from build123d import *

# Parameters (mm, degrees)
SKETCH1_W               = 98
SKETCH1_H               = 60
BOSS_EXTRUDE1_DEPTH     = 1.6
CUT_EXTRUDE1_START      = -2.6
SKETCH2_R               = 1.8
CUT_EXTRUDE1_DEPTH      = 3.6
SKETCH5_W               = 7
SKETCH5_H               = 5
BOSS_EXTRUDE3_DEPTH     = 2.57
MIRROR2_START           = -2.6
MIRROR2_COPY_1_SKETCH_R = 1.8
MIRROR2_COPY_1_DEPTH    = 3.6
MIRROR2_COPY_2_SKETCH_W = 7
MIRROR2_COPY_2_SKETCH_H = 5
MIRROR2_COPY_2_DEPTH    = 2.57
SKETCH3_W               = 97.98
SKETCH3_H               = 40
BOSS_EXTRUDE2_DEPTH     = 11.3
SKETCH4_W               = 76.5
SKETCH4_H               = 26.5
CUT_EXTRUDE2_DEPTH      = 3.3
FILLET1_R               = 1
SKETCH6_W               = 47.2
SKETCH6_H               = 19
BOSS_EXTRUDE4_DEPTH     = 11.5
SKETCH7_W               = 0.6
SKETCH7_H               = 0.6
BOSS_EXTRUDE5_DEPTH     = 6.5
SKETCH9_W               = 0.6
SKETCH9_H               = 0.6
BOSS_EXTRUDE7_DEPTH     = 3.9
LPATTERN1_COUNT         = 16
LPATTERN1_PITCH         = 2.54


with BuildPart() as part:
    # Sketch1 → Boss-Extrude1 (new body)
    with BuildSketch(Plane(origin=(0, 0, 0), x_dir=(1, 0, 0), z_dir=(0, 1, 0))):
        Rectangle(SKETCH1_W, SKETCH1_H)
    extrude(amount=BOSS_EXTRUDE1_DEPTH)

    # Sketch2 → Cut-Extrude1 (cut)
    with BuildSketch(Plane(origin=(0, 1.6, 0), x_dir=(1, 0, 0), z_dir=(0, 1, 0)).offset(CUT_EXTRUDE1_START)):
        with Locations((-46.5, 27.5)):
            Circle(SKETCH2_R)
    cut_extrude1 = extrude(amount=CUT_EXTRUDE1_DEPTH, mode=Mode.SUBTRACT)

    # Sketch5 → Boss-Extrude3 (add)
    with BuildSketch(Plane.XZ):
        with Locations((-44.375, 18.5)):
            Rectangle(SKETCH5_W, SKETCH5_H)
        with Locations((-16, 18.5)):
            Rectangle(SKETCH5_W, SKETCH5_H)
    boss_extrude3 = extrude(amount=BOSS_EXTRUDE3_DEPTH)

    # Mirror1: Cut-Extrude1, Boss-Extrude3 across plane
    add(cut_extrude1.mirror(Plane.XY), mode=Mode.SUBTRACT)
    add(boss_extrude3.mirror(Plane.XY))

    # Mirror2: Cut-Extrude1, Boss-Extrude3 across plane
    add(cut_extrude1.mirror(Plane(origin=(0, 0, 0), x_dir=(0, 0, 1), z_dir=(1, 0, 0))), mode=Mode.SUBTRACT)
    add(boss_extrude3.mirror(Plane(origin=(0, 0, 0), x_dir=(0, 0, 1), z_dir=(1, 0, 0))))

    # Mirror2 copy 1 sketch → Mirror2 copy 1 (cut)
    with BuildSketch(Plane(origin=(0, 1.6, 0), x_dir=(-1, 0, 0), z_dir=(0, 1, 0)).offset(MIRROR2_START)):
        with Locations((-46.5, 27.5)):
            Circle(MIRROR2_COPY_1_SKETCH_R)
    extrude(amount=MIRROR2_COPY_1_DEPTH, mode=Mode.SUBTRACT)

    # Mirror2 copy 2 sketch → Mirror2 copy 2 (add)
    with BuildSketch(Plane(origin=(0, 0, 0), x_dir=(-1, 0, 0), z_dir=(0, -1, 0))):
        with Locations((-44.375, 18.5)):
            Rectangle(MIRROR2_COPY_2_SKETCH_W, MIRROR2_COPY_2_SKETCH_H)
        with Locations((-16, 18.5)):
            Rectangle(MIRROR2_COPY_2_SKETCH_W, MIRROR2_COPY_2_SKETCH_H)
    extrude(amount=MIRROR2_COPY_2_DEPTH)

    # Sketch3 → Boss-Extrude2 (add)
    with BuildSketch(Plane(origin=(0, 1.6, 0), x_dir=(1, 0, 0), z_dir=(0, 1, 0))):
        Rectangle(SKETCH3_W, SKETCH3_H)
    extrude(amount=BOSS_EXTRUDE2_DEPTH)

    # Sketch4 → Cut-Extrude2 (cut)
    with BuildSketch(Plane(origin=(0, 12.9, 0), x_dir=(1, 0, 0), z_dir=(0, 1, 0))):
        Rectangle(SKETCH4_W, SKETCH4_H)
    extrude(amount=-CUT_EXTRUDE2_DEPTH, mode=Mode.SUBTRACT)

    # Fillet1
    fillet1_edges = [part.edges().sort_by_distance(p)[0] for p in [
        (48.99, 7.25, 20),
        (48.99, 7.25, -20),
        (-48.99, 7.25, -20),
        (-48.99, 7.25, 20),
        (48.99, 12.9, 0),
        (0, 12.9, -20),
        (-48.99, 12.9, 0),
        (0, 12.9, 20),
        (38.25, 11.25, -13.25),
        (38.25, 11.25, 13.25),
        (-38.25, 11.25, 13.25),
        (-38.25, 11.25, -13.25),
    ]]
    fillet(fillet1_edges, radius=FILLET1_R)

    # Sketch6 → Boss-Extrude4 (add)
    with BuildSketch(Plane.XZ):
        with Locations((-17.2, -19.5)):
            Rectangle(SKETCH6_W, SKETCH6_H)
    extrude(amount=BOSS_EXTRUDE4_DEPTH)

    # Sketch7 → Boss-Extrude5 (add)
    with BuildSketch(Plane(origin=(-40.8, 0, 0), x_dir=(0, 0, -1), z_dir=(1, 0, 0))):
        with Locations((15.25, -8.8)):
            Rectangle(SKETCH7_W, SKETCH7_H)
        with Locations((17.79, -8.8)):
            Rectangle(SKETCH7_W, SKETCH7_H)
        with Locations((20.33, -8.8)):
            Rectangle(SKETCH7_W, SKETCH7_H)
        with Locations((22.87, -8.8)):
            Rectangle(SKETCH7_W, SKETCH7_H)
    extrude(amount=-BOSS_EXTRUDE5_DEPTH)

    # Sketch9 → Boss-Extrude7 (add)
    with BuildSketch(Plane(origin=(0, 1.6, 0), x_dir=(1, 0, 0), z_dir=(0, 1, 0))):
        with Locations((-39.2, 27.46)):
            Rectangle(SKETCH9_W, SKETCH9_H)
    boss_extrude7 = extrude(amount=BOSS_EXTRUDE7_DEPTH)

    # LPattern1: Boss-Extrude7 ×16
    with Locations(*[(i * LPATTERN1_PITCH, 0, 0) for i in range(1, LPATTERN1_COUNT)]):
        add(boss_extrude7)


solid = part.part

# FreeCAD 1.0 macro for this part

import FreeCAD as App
import Part
import Sketcher

V = App.Vector
Q = App.Units.Quantity


def edges_at(feature, points):
    """Names of the edges that pass closest to the given points."""
    edges = feature.Shape.Edges
    near = lambda p: min(range(len(edges)), key=lambda i: edges[i].distToShape(Part.Vertex(*p))[0])
    return sorted({f"Edge{near(p) + 1}" for p in points})

doc = App.newDocument("Part")
body = doc.addObject("PartDesign::Body", "Body")

# Sketch on XZ plane
sketch1 = doc.addObject("Sketcher::SketchObject", "Sketch")
body.addObject(sketch1)
sketch1.AttachmentSupport = (doc.XZ_Plane, [""])
sketch1.MapMode = "FlatFace"
sketch1.addGeometry([
    Part.LineSegment(V(-49, -30, 0), V(-49, 30, 0)),
    Part.LineSegment(V(-49, 30, 0), V(49, 30, 0)),
    Part.LineSegment(V(49, 30, 0), V(49, -30, 0)),
    Part.LineSegment(V(49, -30, 0), V(-49, -30, 0)),
], False)
sketch1.addConstraint([
    Sketcher.Constraint("Coincident", 0, 2, 1, 1),
    Sketcher.Constraint("Coincident", 1, 2, 2, 1),
    Sketcher.Constraint("Coincident", 2, 2, 3, 1),
    Sketcher.Constraint("Coincident", 3, 2, 0, 1),
    Sketcher.Constraint("Vertical", 0),
    Sketcher.Constraint("Horizontal", 1),
    Sketcher.Constraint("Vertical", 2),
    Sketcher.Constraint("Horizontal", 3),
    Sketcher.Constraint("Symmetric", 0, 2, 2, 2, -1, 1),
    Sketcher.Constraint("DistanceX", 1, 1, 1, 2, Q("98 mm")),
    Sketcher.Constraint("DistanceY", 0, 1, 0, 2, Q("60 mm")),
])
pad1 = doc.addObject("PartDesign::Pad", "Pad")
body.addObject(pad1)
pad1.Profile = sketch1
pad1.Length = 1.6
pad1.Reversed = True

# Sketch on XZ plane
sketch2 = doc.addObject("Sketcher::SketchObject", "Sketch001")
body.addObject(sketch2)
sketch2.AttachmentSupport = (doc.XZ_Plane, [""])
sketch2.MapMode = "FlatFace"
sketch2.AttachmentOffset = App.Placement(V(0, 0, 1), App.Rotation())
sketch2.addGeometry(Part.Circle(V(-46.5, -27.5, 0), V(0, 0, 1), 1.8), False)
sketch2.addConstraint([
    Sketcher.Constraint("Diameter", 0, Q("3.6 mm")),
    Sketcher.Constraint("DistanceX", 0, 3, -1, 1, Q("46.5 mm")),
    Sketcher.Constraint("DistanceY", 0, 3, -1, 1, Q("27.5 mm")),
])
pocket1 = doc.addObject("PartDesign::Pocket", "Pocket")
body.addObject(pocket1)
pocket1.Profile = sketch2
pocket1.Length = 3.6

# Sketch on XZ plane
sketch3 = doc.addObject("Sketcher::SketchObject", "Sketch002")
body.addObject(sketch3)
sketch3.AttachmentSupport = (doc.XZ_Plane, [""])
sketch3.MapMode = "FlatFace"
sketch3.addGeometry([
    Part.LineSegment(V(-47.875, 21, 0), V(-47.875, 16, 0)),  # 0
    Part.LineSegment(V(-47.875, 16, 0), V(-40.875, 16, 0)),  # 1
    Part.LineSegment(V(-40.875, 16, 0), V(-40.875, 21, 0)),  # 2
    Part.LineSegment(V(-40.875, 21, 0), V(-47.875, 21, 0)),  # 3
    Part.LineSegment(V(-19.5, 21, 0), V(-19.5, 16, 0)),  # 4
    Part.LineSegment(V(-19.5, 16, 0), V(-12.5, 16, 0)),  # 5
    Part.LineSegment(V(-12.5, 16, 0), V(-12.5, 21, 0)),  # 6
    Part.LineSegment(V(-12.5, 21, 0), V(-19.5, 21, 0)),  # 7
], False)
sketch3.addConstraint([
    Sketcher.Constraint("Coincident", 0, 2, 1, 1),
    Sketcher.Constraint("Coincident", 1, 2, 2, 1),
    Sketcher.Constraint("Coincident", 2, 2, 3, 1),
    Sketcher.Constraint("Coincident", 3, 2, 0, 1),
    Sketcher.Constraint("Coincident", 4, 2, 5, 1),
    Sketcher.Constraint("Coincident", 5, 2, 6, 1),
    Sketcher.Constraint("Coincident", 6, 2, 7, 1),
    Sketcher.Constraint("Coincident", 7, 2, 4, 1),
    Sketcher.Constraint("Vertical", 0),
    Sketcher.Constraint("Horizontal", 1),
    Sketcher.Constraint("Vertical", 2),
    Sketcher.Constraint("Horizontal", 3),
    Sketcher.Constraint("Vertical", 4),
    Sketcher.Constraint("Horizontal", 5),
    Sketcher.Constraint("Vertical", 6),
    Sketcher.Constraint("Horizontal", 7),
    Sketcher.Constraint("Horizontal", 1, 2, 4, 2),
    Sketcher.Constraint("Horizontal", 3, 2, 6, 2),
    Sketcher.Constraint("Equal", 3, 5),
    Sketcher.Constraint("DistanceX", 1, 1, 1, 2, Q("7 mm")),
    Sketcher.Constraint("DistanceY", 0, 2, 0, 1, Q("5 mm")),
    Sketcher.Constraint("DistanceY", -1, 1, 0, 2, Q("16 mm")),
    Sketcher.Constraint("DistanceX", 4, 2, -1, 1, Q("19.5 mm")),
    Sketcher.Constraint("DistanceX", 0, 2, -1, 1, Q("47.875 mm")),
])
pad2 = doc.addObject("PartDesign::Pad", "Pad001")
body.addObject(pad2)
pad2.Profile = sketch3
pad2.Length = 2.57
doc.recompute()

mirrored = doc.addObject("PartDesign::Mirrored", "Mirrored")
body.addObject(mirrored)
mirrored.Originals = [pocket1, pad2]
mirrored.MirrorPlane = (doc.XY_Plane, [""])
body.Tip = mirrored
doc.recompute()

mirrored2 = doc.addObject("PartDesign::Mirrored", "Mirrored001")
body.addObject(mirrored2)
mirrored2.Originals = [pocket1, pad2]
mirrored2.MirrorPlane = (doc.YZ_Plane, [""])
body.Tip = mirrored2

# Sketch on XZ plane
sketch4 = doc.addObject("Sketcher::SketchObject", "Sketch003")
body.addObject(sketch4)
sketch4.AttachmentSupport = (doc.XZ_Plane, [""])
sketch4.MapMode = "FlatFace"
sketch4.AttachmentOffset = App.Placement(V(0, 0, 1), App.Rotation())
sketch4.addGeometry(Part.Circle(V(46.5, 27.5, 0), V(0, 0, 1), 1.8), False)
sketch4.addConstraint([
    Sketcher.Constraint("Diameter", 0, Q("3.6 mm")),
    Sketcher.Constraint("DistanceX", -1, 1, 0, 3, Q("46.5 mm")),
    Sketcher.Constraint("DistanceY", -1, 1, 0, 3, Q("27.5 mm")),
])
pocket2 = doc.addObject("PartDesign::Pocket", "Pocket001")
body.addObject(pocket2)
pocket2.Profile = sketch4
pocket2.Length = 3.6

# Sketch on XZ plane
sketch5 = doc.addObject("Sketcher::SketchObject", "Sketch004")
body.addObject(sketch5)
sketch5.AttachmentSupport = (doc.XZ_Plane, [""])
sketch5.MapMode = "FlatFace"
sketch5.addGeometry([
    Part.LineSegment(V(47.875, -21, 0), V(47.875, -16, 0)),  # 0
    Part.LineSegment(V(47.875, -16, 0), V(40.875, -16, 0)),  # 1
    Part.LineSegment(V(40.875, -16, 0), V(40.875, -21, 0)),  # 2
    Part.LineSegment(V(40.875, -21, 0), V(47.875, -21, 0)),  # 3
    Part.LineSegment(V(19.5, -21, 0), V(19.5, -16, 0)),  # 4
    Part.LineSegment(V(19.5, -16, 0), V(12.5, -16, 0)),  # 5
    Part.LineSegment(V(12.5, -16, 0), V(12.5, -21, 0)),  # 6
    Part.LineSegment(V(12.5, -21, 0), V(19.5, -21, 0)),  # 7
], False)
sketch5.addConstraint([
    Sketcher.Constraint("Coincident", 0, 2, 1, 1),
    Sketcher.Constraint("Coincident", 1, 2, 2, 1),
    Sketcher.Constraint("Coincident", 2, 2, 3, 1),
    Sketcher.Constraint("Coincident", 3, 2, 0, 1),
    Sketcher.Constraint("Coincident", 4, 2, 5, 1),
    Sketcher.Constraint("Coincident", 5, 2, 6, 1),
    Sketcher.Constraint("Coincident", 6, 2, 7, 1),
    Sketcher.Constraint("Coincident", 7, 2, 4, 1),
    Sketcher.Constraint("Vertical", 0),
    Sketcher.Constraint("Horizontal", 1),
    Sketcher.Constraint("Vertical", 2),
    Sketcher.Constraint("Horizontal", 3),
    Sketcher.Constraint("Vertical", 4),
    Sketcher.Constraint("Horizontal", 5),
    Sketcher.Constraint("Vertical", 6),
    Sketcher.Constraint("Horizontal", 7),
    Sketcher.Constraint("Horizontal", 1, 2, 4, 2),
    Sketcher.Constraint("Horizontal", 3, 2, 6, 2),
    Sketcher.Constraint("Equal", 3, 5),
    Sketcher.Constraint("DistanceX", 1, 2, 1, 1, Q("7 mm")),
    Sketcher.Constraint("DistanceY", 0, 1, 0, 2, Q("5 mm")),
    Sketcher.Constraint("DistanceY", 0, 2, -1, 1, Q("16 mm")),
    Sketcher.Constraint("DistanceX", -1, 1, 4, 2, Q("19.5 mm")),
    Sketcher.Constraint("DistanceX", -1, 1, 0, 2, Q("47.875 mm")),
])
pad3 = doc.addObject("PartDesign::Pad", "Pad002")
body.addObject(pad3)
pad3.Profile = sketch5
pad3.Length = 2.57

# Sketch on XZ plane
sketch6 = doc.addObject("Sketcher::SketchObject", "Sketch005")
body.addObject(sketch6)
sketch6.AttachmentSupport = (doc.XZ_Plane, [""])
sketch6.MapMode = "FlatFace"
sketch6.AttachmentOffset = App.Placement(V(0, 0, -1.6), App.Rotation())
sketch6.addGeometry([
    Part.LineSegment(V(-48.99, -20, 0), V(-48.99, 20, 0)),
    Part.LineSegment(V(-48.99, 20, 0), V(48.99, 20, 0)),
    Part.LineSegment(V(48.99, 20, 0), V(48.99, -20, 0)),
    Part.LineSegment(V(48.99, -20, 0), V(-48.99, -20, 0)),
], False)
sketch6.addConstraint([
    Sketcher.Constraint("Coincident", 0, 2, 1, 1),
    Sketcher.Constraint("Coincident", 1, 2, 2, 1),
    Sketcher.Constraint("Coincident", 2, 2, 3, 1),
    Sketcher.Constraint("Coincident", 3, 2, 0, 1),
    Sketcher.Constraint("Vertical", 0),
    Sketcher.Constraint("Horizontal", 1),
    Sketcher.Constraint("Vertical", 2),
    Sketcher.Constraint("Horizontal", 3),
    Sketcher.Constraint("Symmetric", 0, 2, 2, 2, -1, 1),
    Sketcher.Constraint("DistanceY", 0, 1, 0, 2, Q("40 mm")),
    Sketcher.Constraint("DistanceX", 1, 1, 1, 2, Q("97.98 mm")),
])
pad4 = doc.addObject("PartDesign::Pad", "Pad003")
body.addObject(pad4)
pad4.Profile = sketch6
pad4.Length = 11.3
pad4.Reversed = True

# Sketch on XZ plane
sketch7 = doc.addObject("Sketcher::SketchObject", "Sketch006")
body.addObject(sketch7)
sketch7.AttachmentSupport = (doc.XZ_Plane, [""])
sketch7.MapMode = "FlatFace"
sketch7.AttachmentOffset = App.Placement(V(0, 0, -12.9), App.Rotation())
sketch7.addGeometry([
    Part.LineSegment(V(-38.25, -13.25, 0), V(-38.25, 13.25, 0)),
    Part.LineSegment(V(-38.25, 13.25, 0), V(38.25, 13.25, 0)),
    Part.LineSegment(V(38.25, 13.25, 0), V(38.25, -13.25, 0)),
    Part.LineSegment(V(38.25, -13.25, 0), V(-38.25, -13.25, 0)),
], False)
sketch7.addConstraint([
    Sketcher.Constraint("Coincident", 0, 2, 1, 1),
    Sketcher.Constraint("Coincident", 1, 2, 2, 1),
    Sketcher.Constraint("Coincident", 2, 2, 3, 1),
    Sketcher.Constraint("Coincident", 3, 2, 0, 1),
    Sketcher.Constraint("Vertical", 0),
    Sketcher.Constraint("Horizontal", 1),
    Sketcher.Constraint("Vertical", 2),
    Sketcher.Constraint("Horizontal", 3),
    Sketcher.Constraint("Symmetric", 0, 2, 2, 2, -1, 1),
    Sketcher.Constraint("DistanceX", 1, 1, 1, 2, Q("76.5 mm")),
    Sketcher.Constraint("DistanceY", 0, 1, 0, 2, Q("26.5 mm")),
])
pocket3 = doc.addObject("PartDesign::Pocket", "Pocket002")
body.addObject(pocket3)
pocket3.Profile = sketch7
pocket3.Length = 3.3
pocket3.Reversed = True
doc.recompute()

fillet = doc.addObject("PartDesign::Fillet", "Fillet")
body.addObject(fillet)
fillet.Base = (pocket3, edges_at(pocket3, [
    (48.99, 7.25, 20),
    (48.99, 7.25, -20),
    (-48.99, 7.25, -20),
    (-48.99, 7.25, 20),
    (48.99, 12.9, 0),
    (0, 12.9, -20),
    (-48.99, 12.9, 0),
    (0, 12.9, 20),
    (38.25, 11.25, -13.25),
    (38.25, 11.25, 13.25),
    (-38.25, 11.25, 13.25),
    (-38.25, 11.25, -13.25),
]))
fillet.Radius = 1

# Sketch on XZ plane
sketch8 = doc.addObject("Sketcher::SketchObject", "Sketch007")
body.addObject(sketch8)
sketch8.AttachmentSupport = (doc.XZ_Plane, [""])
sketch8.MapMode = "FlatFace"
sketch8.addGeometry([
    Part.LineSegment(V(-40.8, -10, 0), V(-40.8, -29, 0)),
    Part.LineSegment(V(-40.8, -29, 0), V(6.4, -29, 0)),
    Part.LineSegment(V(6.4, -29, 0), V(6.4, -10, 0)),
    Part.LineSegment(V(6.4, -10, 0), V(-40.8, -10, 0)),
], False)
sketch8.addConstraint([
    Sketcher.Constraint("Coincident", 0, 2, 1, 1),
    Sketcher.Constraint("Coincident", 1, 2, 2, 1),
    Sketcher.Constraint("Coincident", 2, 2, 3, 1),
    Sketcher.Constraint("Coincident", 3, 2, 0, 1),
    Sketcher.Constraint("Vertical", 0),
    Sketcher.Constraint("Horizontal", 1),
    Sketcher.Constraint("Vertical", 2),
    Sketcher.Constraint("Horizontal", 3),
    Sketcher.Constraint("DistanceY", 0, 2, 0, 1, Q("19 mm")),
    Sketcher.Constraint("DistanceX", 1, 1, 1, 2, Q("47.2 mm")),
    Sketcher.Constraint("DistanceY", 0, 2, -1, 1, Q("29 mm")),
    Sketcher.Constraint("DistanceX", 0, 2, -1, 1, Q("40.8 mm")),
])
pad5 = doc.addObject("PartDesign::Pad", "Pad004")
body.addObject(pad5)
pad5.Profile = sketch8
pad5.Length = 11.5

# Sketch on YZ plane
sketch9 = doc.addObject("Sketcher::SketchObject", "Sketch008")
body.addObject(sketch9)
sketch9.AttachmentSupport = (doc.YZ_Plane, [""])
sketch9.MapMode = "FlatFace"
sketch9.AttachmentOffset = App.Placement(V(0, 0, -40.8), App.Rotation())
sketch9.addGeometry([
    Part.LineSegment(V(-8.5, -14.95, 0), V(-9.1, -14.95, 0)),  # 0
    Part.LineSegment(V(-9.1, -14.95, 0), V(-9.1, -15.55, 0)),  # 1
    Part.LineSegment(V(-9.1, -15.55, 0), V(-8.5, -15.55, 0)),  # 2
    Part.LineSegment(V(-8.5, -15.55, 0), V(-8.5, -14.95, 0)),  # 3
    Part.LineSegment(V(-8.5, -17.49, 0), V(-9.1, -17.49, 0)),  # 4
    Part.LineSegment(V(-9.1, -17.49, 0), V(-9.1, -18.09, 0)),  # 5
    Part.LineSegment(V(-9.1, -18.09, 0), V(-8.5, -18.09, 0)),  # 6
    Part.LineSegment(V(-8.5, -18.09, 0), V(-8.5, -17.49, 0)),  # 7
    Part.LineSegment(V(-8.5, -20.03, 0), V(-9.1, -20.03, 0)),  # 8
    Part.LineSegment(V(-9.1, -20.03, 0), V(-9.1, -20.63, 0)),  # 9
    Part.LineSegment(V(-9.1, -20.63, 0), V(-8.5, -20.63, 0)),  # 10
    Part.LineSegment(V(-8.5, -20.63, 0), V(-8.5, -20.03, 0)),  # 11
    Part.LineSegment(V(-8.5, -22.57, 0), V(-9.1, -22.57, 0)),  # 12
    Part.LineSegment(V(-9.1, -22.57, 0), V(-9.1, -23.17, 0)),  # 13
    Part.LineSegment(V(-9.1, -23.17, 0), V(-8.5, -23.17, 0)),  # 14
    Part.LineSegment(V(-8.5, -23.17, 0), V(-8.5, -22.57, 0)),  # 15
], False)
sketch9.addConstraint([
    Sketcher.Constraint("Coincident", 0, 2, 1, 1),
    Sketcher.Constraint("Coincident", 1, 2, 2, 1),
    Sketcher.Constraint("Coincident", 2, 2, 3, 1),
    Sketcher.Constraint("Coincident", 3, 2, 0, 1),
    Sketcher.Constraint("Coincident", 4, 2, 5, 1),
    Sketcher.Constraint("Coincident", 5, 2, 6, 1),
    Sketcher.Constraint("Coincident", 6, 2, 7, 1),
    Sketcher.Constraint("Coincident", 7, 2, 4, 1),
    Sketcher.Constraint("Coincident", 8, 2, 9, 1),
    Sketcher.Constraint("Coincident", 9, 2, 10, 1),
    Sketcher.Constraint("Coincident", 10, 2, 11, 1),
    Sketcher.Constraint("Coincident", 11, 2, 8, 1),
    Sketcher.Constraint("Coincident", 12, 2, 13, 1),
    Sketcher.Constraint("Coincident", 13, 2, 14, 1),
    Sketcher.Constraint("Coincident", 14, 2, 15, 1),
    Sketcher.Constraint("Coincident", 15, 2, 12, 1),
    Sketcher.Constraint("Horizontal", 0),
    Sketcher.Constraint("Vertical", 1),
    Sketcher.Constraint("Horizontal", 2),
    Sketcher.Constraint("Vertical", 3),
    Sketcher.Constraint("Horizontal", 4),
    Sketcher.Constraint("Vertical", 5),
    Sketcher.Constraint("Horizontal", 6),
    Sketcher.Constraint("Vertical", 7),
    Sketcher.Constraint("Horizontal", 8),
    Sketcher.Constraint("Vertical", 9),
    Sketcher.Constraint("Horizontal", 10),
    Sketcher.Constraint("Vertical", 11),
    Sketcher.Constraint("Horizontal", 12),
    Sketcher.Constraint("Vertical", 13),
    Sketcher.Constraint("Horizontal", 14),
    Sketcher.Constraint("Vertical", 15),
    Sketcher.Constraint("Vertical", 1, 2, 4, 2),
    Sketcher.Constraint("Vertical", 3, 2, 6, 2),
    Sketcher.Constraint("Vertical", 5, 2, 8, 2),
    Sketcher.Constraint("Vertical", 7, 2, 10, 2),
    Sketcher.Constraint("Vertical", 9, 2, 12, 2),
    Sketcher.Constraint("Vertical", 11, 2, 14, 2),
    Sketcher.Constraint("Equal", 14, 1),
    Sketcher.Constraint("Equal", 3, 5),
    Sketcher.Constraint("Equal", 7, 9),
    Sketcher.Constraint("Equal", 11, 13),
    Sketcher.Constraint("DistanceX", 0, 2, 0, 1, Q("0.6 mm")),
    Sketcher.Constraint("DistanceX", 0, 2, -1, 1, Q("9.1 mm")),
    Sketcher.Constraint("DistanceY", 0, 2, -1, 1, Q("14.95 mm")),
    Sketcher.Constraint("DistanceY", 4, 2, -1, 1, Q("17.49 mm")),
    Sketcher.Constraint("DistanceY", 8, 2, -1, 1, Q("20.03 mm")),
    Sketcher.Constraint("DistanceY", 12, 2, -1, 1, Q("22.57 mm")),
])
pad6 = doc.addObject("PartDesign::Pad", "Pad005")
body.addObject(pad6)
pad6.Profile = sketch9
pad6.Length = 6.5
pad6.Reversed = True

# Sketch on XZ plane
sketch10 = doc.addObject("Sketcher::SketchObject", "Sketch009")
body.addObject(sketch10)
sketch10.AttachmentSupport = (doc.XZ_Plane, [""])
sketch10.MapMode = "FlatFace"
sketch10.AttachmentOffset = App.Placement(V(0, 0, -1.6), App.Rotation())
sketch10.addGeometry([
    Part.LineSegment(V(-39.5, -27.76, 0), V(-39.5, -27.16, 0)),
    Part.LineSegment(V(-39.5, -27.16, 0), V(-38.9, -27.16, 0)),
    Part.LineSegment(V(-38.9, -27.16, 0), V(-38.9, -27.76, 0)),
    Part.LineSegment(V(-38.9, -27.76, 0), V(-39.5, -27.76, 0)),
], False)
sketch10.addConstraint([
    Sketcher.Constraint("Coincident", 0, 2, 1, 1),
    Sketcher.Constraint("Coincident", 1, 2, 2, 1),
    Sketcher.Constraint("Coincident", 2, 2, 3, 1),
    Sketcher.Constraint("Coincident", 3, 2, 0, 1),
    Sketcher.Constraint("Vertical", 0),
    Sketcher.Constraint("Horizontal", 1),
    Sketcher.Constraint("Vertical", 2),
    Sketcher.Constraint("Horizontal", 3),
    Sketcher.Constraint("Equal", 3, 0),
    Sketcher.Constraint("DistanceX", 1, 1, 1, 2, Q("0.6 mm")),
    Sketcher.Constraint("DistanceX", 0, 2, -1, 1, Q("39.5 mm")),
    Sketcher.Constraint("DistanceY", 0, 2, -1, 1, Q("27.16 mm")),
])
pad7 = doc.addObject("PartDesign::Pad", "Pad006")
body.addObject(pad7)
pad7.Profile = sketch10
pad7.Length = 3.9
pad7.Reversed = True
doc.recompute()

linearpattern = doc.addObject("PartDesign::LinearPattern", "LinearPattern")
body.addObject(linearpattern)
linearpattern.Originals = [pad7]
linearpattern.Direction = (doc.X_Axis, [""])
linearpattern.Mode = "offset"
linearpattern.Offset = 2.54
linearpattern.Occurrences = 16
body.Tip = linearpattern

doc.recompute()
